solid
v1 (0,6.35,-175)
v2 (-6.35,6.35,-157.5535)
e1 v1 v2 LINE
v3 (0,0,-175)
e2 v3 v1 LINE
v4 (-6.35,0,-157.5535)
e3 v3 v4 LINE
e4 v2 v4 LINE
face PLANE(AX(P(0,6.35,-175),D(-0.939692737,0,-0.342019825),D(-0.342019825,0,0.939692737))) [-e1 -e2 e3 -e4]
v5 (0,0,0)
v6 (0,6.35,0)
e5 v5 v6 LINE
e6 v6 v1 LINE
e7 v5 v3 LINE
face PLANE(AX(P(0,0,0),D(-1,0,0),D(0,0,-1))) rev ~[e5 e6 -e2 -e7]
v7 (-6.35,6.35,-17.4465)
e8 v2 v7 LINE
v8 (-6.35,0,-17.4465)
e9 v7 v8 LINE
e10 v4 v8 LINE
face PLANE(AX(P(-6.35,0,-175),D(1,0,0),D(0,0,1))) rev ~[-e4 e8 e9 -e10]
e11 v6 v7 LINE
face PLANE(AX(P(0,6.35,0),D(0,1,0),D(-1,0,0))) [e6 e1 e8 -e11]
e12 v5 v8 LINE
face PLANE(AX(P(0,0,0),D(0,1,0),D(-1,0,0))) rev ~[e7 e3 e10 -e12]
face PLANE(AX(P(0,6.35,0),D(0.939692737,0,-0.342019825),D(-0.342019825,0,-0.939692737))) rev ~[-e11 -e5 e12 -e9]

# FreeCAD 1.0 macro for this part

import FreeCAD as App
import Part
import Sketcher
Q = App.Units.Quantity

doc = App.newDocument("Part")
params = doc.addObject("Spreadsheet::Sheet", "Params")
for row, (alias, value) in enumerate([
    ("sketch1_height", "175 mm"),
    ("sketch1_width", "6.35 mm"),
    ("pad1_length", "6.35 mm"),
    ("sketch2_width", "6.35 mm"),
    ("pocket1_length", "6.35 mm"),
    ("sketch3_width", "6.35 mm"),
    ("pocket2_length", "10 mm"),
], start=1):
    params.set(f"A{row}", alias)
    params.set(f"B{row}", "=" + value)
    params.setAlias(f"B{row}", alias)

body = doc.addObject("PartDesign::Body", "Body")

sketch1 = doc.addObject("Sketcher::SketchObject", "Sketch")
body.addObject(sketch1)
sketch1.AttachmentSupport = (doc.XZ_Plane, [""])
sketch1.MapMode = "FlatFace"
sketch1.addGeometry([
    Part.LineSegment(App.Vector(-6.35, 0, 0), App.Vector(0, 0, 0)),
    Part.LineSegment(App.Vector(0, 0, 0), App.Vector(0, -175, 0)),
    Part.LineSegment(App.Vector(0, -175, 0), App.Vector(-6.35, -175, 0)),
    Part.LineSegment(App.Vector(-6.35, -175, 0), App.Vector(-6.35, 0, 0)),
], False)
sketch1.addConstraint([
    Sketcher.Constraint("Coincident", 0, 2, 1, 1),
    Sketcher.Constraint("Coincident", 1, 2, 2, 1),
    Sketcher.Constraint("Coincident", 2, 2, 3, 1),
    Sketcher.Constraint("Coincident", 3, 2, 0, 1),
    Sketcher.Constraint("Horizontal", 0),
    Sketcher.Constraint("Vertical", 1),
    Sketcher.Constraint("Horizontal", 2),
    Sketcher.Constraint("Vertical", 3),
    Sketcher.Constraint("Coincident", 0, 2, -1, 1),
    Sketcher.Constraint("DistanceY", 1, 2, 1, 1, Q("175 mm")),
    Sketcher.Constraint("DistanceX", 0, 1, 0, 2, Q("6.35 mm")),
])
sketch1.setExpression("Constraints[9]", "Params.sketch1_height")
sketch1.setExpression("Constraints[10]", "Params.sketch1_width")
pad1 = doc.addObject("PartDesign::Pad", "Pad")
body.addObject(pad1)
pad1.Profile = sketch1
pad1.setExpression("Length", "Params.pad1_length")
pad1.Reversed = True

sketch2 = doc.addObject("Sketcher::SketchObject", "Sketch001")
body.addObject(sketch2)
sketch2.AttachmentSupport = (doc.XZ_Plane, [""])
sketch2.MapMode = "FlatFace"
sketch2.AttachmentOffset = App.Placement(App.Vector(0, 0, -6.35), App.Rotation())
sketch2.addGeometry([
    Part.LineSegment(App.Vector(-6.35, -17.4465, 0), App.Vector(-6.35, 0, 0)),
    Part.LineSegment(App.Vector(-6.35, 0, 0), App.Vector(0, 0, 0)),
    Part.LineSegment(App.Vector(0, 0, 0), App.Vector(-6.35, -17.4465, 0)),
], False)
sketch2.addConstraint([
    Sketcher.Constraint("Coincident", 0, 2, 1, 1),
    Sketcher.Constraint("Coincident", 1, 2, 2, 1),
    Sketcher.Constraint("Coincident", 2, 2, 0, 1),
    Sketcher.Constraint("Vertical", 0),
    Sketcher.Constraint("Horizontal", 1),
    Sketcher.Constraint("Coincident", 1, 2, -1, 1),
    Sketcher.Constraint("Angle", 2, Q("-110 deg")),
    Sketcher.Constraint("DistanceX", 1, 1, 1, 2, Q("6.35 mm")),
])
sketch2.setExpression("Constraints[7]", "Params.sketch2_width")
pocket1 = doc.addObject("PartDesign::Pocket", "Pocket")
body.addObject(pocket1)
pocket1.Profile = sketch2
pocket1.setExpression("Length", "Params.pocket1_length")
pocket1.Reversed = True

sketch3 = doc.addObject("Sketcher::SketchObject", "Sketch002")
body.addObject(sketch3)
sketch3.AttachmentSupport = (doc.XZ_Plane, [""])
sketch3.MapMode = "FlatFace"
sketch3.AttachmentOffset = App.Placement(App.Vector(0, 0, -6.35), App.Rotation())
sketch3.addGeometry([
    Part.LineSegment(App.Vector(-6.35, -157.5535, 0), App.Vector(0, -175, 0)),
    Part.LineSegment(App.Vector(0, -175, 0), App.Vector(-6.35, -175, 0)),
    Part.LineSegment(App.Vector(-6.35, -175, 0), App.Vector(-6.35, -157.5535, 0)),
], False)
sketch3.addConstraint([
    Sketcher.Constraint("Coincident", 0, 2, 1, 1),
    Sketcher.Constraint("Coincident", 1, 2, 2, 1),
    Sketcher.Constraint("Coincident", 2, 2, 0, 1),
    Sketcher.Constraint("Horizontal", 1),
    Sketcher.Constraint("Vertical", 2),
    Sketcher.Constraint("PointOnObject", 0, 2, -2),
    Sketcher.Constraint("Angle", 0, Q("-70 deg")),
    Sketcher.Constraint("DistanceY", 0, 2, -1, 1, Q("175 mm")),
    Sketcher.Constraint("DistanceX", 1, 2, 1, 1, Q("6.35 mm")),
])
sketch3.setExpression("Constraints[8]", "Params.sketch3_width")
pocket2 = doc.addObject("PartDesign::Pocket", "Pocket001")
body.addObject(pocket2)
pocket2.Profile = sketch3
pocket2.setExpression("Length", "Params.pocket2_length")
pocket2.Reversed = True

doc.recompute()
